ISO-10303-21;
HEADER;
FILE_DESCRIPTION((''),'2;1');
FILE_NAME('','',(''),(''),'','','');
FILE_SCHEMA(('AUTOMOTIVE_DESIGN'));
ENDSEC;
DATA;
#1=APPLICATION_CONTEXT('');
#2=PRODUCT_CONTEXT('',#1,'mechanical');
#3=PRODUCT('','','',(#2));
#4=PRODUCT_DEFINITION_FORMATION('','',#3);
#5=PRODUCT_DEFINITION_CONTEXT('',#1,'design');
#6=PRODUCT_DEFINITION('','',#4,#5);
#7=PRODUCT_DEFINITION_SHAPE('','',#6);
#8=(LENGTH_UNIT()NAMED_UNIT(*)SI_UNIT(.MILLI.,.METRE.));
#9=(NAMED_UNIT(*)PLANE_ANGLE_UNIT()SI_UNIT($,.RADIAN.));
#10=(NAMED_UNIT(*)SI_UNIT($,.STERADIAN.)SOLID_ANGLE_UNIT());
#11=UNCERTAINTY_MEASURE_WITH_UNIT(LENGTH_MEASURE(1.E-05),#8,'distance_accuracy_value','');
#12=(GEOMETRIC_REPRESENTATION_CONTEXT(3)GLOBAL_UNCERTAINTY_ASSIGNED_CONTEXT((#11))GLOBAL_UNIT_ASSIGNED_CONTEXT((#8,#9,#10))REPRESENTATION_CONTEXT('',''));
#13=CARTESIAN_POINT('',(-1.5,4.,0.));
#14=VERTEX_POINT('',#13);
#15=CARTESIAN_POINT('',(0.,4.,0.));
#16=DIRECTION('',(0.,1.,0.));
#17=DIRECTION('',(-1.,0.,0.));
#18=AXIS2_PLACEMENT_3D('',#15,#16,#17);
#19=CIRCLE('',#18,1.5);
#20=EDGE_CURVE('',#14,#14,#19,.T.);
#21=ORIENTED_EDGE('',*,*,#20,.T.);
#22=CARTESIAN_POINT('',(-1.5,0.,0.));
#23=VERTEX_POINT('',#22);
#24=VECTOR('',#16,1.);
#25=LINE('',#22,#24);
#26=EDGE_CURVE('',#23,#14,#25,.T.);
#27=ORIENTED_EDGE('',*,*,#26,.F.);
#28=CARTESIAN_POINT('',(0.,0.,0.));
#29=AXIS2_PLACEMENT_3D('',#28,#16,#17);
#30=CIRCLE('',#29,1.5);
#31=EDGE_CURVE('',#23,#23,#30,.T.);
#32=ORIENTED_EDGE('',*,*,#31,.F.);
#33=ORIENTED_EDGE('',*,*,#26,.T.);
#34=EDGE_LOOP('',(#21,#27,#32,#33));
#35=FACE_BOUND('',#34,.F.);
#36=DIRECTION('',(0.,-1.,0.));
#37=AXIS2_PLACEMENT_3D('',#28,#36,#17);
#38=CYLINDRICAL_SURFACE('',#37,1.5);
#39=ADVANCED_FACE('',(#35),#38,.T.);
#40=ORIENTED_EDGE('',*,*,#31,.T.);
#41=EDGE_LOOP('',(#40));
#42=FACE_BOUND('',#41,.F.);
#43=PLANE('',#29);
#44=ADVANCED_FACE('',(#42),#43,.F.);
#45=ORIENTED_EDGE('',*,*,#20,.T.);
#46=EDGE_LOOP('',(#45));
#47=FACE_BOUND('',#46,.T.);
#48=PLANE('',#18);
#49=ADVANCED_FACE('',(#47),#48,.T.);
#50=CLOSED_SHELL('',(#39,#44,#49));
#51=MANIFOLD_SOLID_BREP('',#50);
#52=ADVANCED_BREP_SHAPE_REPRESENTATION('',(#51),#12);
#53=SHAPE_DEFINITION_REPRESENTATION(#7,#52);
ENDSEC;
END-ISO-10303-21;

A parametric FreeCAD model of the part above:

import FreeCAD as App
import Part
import Sketcher
from FreeCAD import Vector
Q = App.Units.Quantity

doc = App.newDocument("Part")
params = doc.addObject("Spreadsheet::Sheet", "Params")
for row, (alias, value) in enumerate([
    ("sketch1_diameter", "3 mm"),
    ("pad1_length", "4 mm"),
], start=1):
    params.set(f"A{row}", alias)
    params.set(f"B{row}", "=" + value)
    params.setAlias(f"B{row}", alias)

body = doc.addObject("PartDesign::Body", "Body")

# Sketch on XZ plane
sketch1 = doc.addObject("Sketcher::SketchObject", "Sketch")
body.addObject(sketch1)
sketch1.AttachmentSupport = (doc.XZ_Plane, [""])
sketch1.MapMode = "FlatFace"
sketch1.addGeometry(Part.Circle(Vector(0, 0, 0), Vector(0, 0, 1), 1.5), False)
sketch1.addConstraint(Sketcher.Constraint("Coincident", 0, 3, -1, 1))
sketch1.addConstraint(Sketcher.Constraint("Diameter", 0, Q("3 mm")))
sketch1.setExpression("Constraints[1]", "Params.sketch1_diameter")
pad1 = doc.addObject("PartDesign::Pad", "Pad")
body.addObject(pad1)
pad1.Profile = sketch1
pad1.setExpression("Length", "Params.pad1_length")
pad1.Reversed = True

doc.recompute()
